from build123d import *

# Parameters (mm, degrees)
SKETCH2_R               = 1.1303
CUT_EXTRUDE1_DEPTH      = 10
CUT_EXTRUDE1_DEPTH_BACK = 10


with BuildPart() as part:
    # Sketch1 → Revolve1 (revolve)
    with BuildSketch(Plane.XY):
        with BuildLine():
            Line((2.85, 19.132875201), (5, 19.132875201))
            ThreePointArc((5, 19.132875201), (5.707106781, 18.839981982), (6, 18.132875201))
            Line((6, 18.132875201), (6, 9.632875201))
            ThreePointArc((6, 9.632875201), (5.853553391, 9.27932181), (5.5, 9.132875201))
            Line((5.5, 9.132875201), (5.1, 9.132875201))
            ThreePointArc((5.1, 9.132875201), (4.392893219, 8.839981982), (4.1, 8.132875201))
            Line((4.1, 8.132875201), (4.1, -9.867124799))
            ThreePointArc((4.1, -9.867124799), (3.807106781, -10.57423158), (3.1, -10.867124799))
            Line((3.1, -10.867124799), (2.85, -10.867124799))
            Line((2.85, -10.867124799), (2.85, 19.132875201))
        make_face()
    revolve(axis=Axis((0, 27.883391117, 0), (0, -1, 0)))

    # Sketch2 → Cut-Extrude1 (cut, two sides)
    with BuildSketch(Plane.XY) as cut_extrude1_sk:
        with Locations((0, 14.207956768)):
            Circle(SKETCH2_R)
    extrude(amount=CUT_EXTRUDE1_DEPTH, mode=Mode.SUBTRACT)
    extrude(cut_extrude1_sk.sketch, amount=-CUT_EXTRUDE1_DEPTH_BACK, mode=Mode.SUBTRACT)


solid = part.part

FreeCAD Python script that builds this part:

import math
import FreeCAD as App
import Part
import Sketcher

V = App.Vector

doc = App.newDocument("Part")
body = doc.addObject("PartDesign::Body", "Body")

# Sketch on XY plane
sketch1 = body.newObject("Sketcher::SketchObject", "Sketch")
sketch1.AttachmentSupport = (doc.getObject("XY_Plane"), [""])
sketch1.MapMode = "FlatFace"
sketch1.addGeometry([
    Part.LineSegment(V(5, 19.13, 0), V(2.85, 19.13, 0)),  # 0
    Part.LineSegment(V(2.85, 19.13, 0), V(2.85, -10.87, 0)),  # 1
    Part.LineSegment(V(2.85, -10.87, 0), V(3.1, -10.87, 0)),  # 2
    Part.ArcOfCircle(Part.Circle(V(3.1, -9.87, 0), V(0, 0, 1), 1), math.radians(-90), math.radians(0)),  # 3
    Part.LineSegment(V(4.1, -9.87, 0), V(4.1, 8.13, 0)),  # 4
    Part.ArcOfCircle(Part.Circle(V(5.1, 8.13, 0), V(0, 0, 1), 1), math.radians(90), math.radians(180)),  # 5
    Part.LineSegment(V(5.1, 9.13, 0), V(5.5, 9.13, 0)),  # 6
    Part.ArcOfCircle(Part.Circle(V(5.5, 9.63, 0), V(0, 0, 1), 0.5), math.radians(-90), math.radians(0)),  # 7
    Part.LineSegment(V(6, 9.63, 0), V(6, 18.13, 0)),  # 8
    Part.ArcOfCircle(Part.Circle(V(5, 18.13, 0), V(0, 0, 1), 1), math.radians(0), math.radians(90)),  # 9
], False)
sketch1.addConstraint([
    Sketcher.Constraint("Coincident", 0, 2, 1, 1),
    Sketcher.Constraint("Coincident", 1, 2, 2, 1),
    Sketcher.Constraint("Tangent", 2, 2, 3, 1),
    Sketcher.Constraint("Tangent", 3, 2, 4, 1),
    Sketcher.Constraint("Tangent", 4, 2, 5, 2),
    Sketcher.Constraint("Tangent", 5, 1, 6, 1),
    Sketcher.Constraint("Tangent", 6, 2, 7, 1),
    Sketcher.Constraint("Tangent", 7, 2, 8, 1),
    Sketcher.Constraint("Tangent", 8, 2, 9, 1),
    Sketcher.Constraint("Tangent", 9, 2, 0, 1),
    Sketcher.Constraint("Horizontal", 0),
    Sketcher.Constraint("Vertical", 1),
    Sketcher.Constraint("Horizontal", 2),
    Sketcher.Constraint("Vertical", 4),
    Sketcher.Constraint("Horizontal", 6),
    Sketcher.Constraint("Vertical", 8),
    Sketcher.Constraint("Equal", 3, 5),
    Sketcher.Constraint("Equal", 5, 9),
    Sketcher.Constraint("Radius", 3, 1.0),
    Sketcher.Constraint("Radius", 7, 0.5),
    Sketcher.Constraint("DistanceY", 1, 2, 1, 1, 30.0),
    Sketcher.Constraint("DistanceY", 4, 1, 4, 2, 18.0),
    Sketcher.Constraint("DistanceX", 6, 1, 6, 2, 0.4),
    Sketcher.Constraint("DistanceX", -1, 1, 9, 3, 5.0),
    Sketcher.Constraint("DistanceX", 0, 2, 0, 1, 2.15),
    Sketcher.Constraint("DistanceY", 3, 3, -1, 1, 9.867125),
])
revolution = body.newObject("PartDesign::Revolution", "Revolution")
revolution.Profile = sketch1
revolution.ReferenceAxis = (sketch1, ["V_Axis"])
revolution.Angle = 360

# Sketch on XY plane
sketch2 = body.newObject("Sketcher::SketchObject", "Sketch001")
sketch2.AttachmentSupport = (doc.getObject("XY_Plane"), [""])
sketch2.MapMode = "FlatFace"
sketch2.addGeometry(Part.Circle(V(0, 14.2, 0), V(0, 0, 1), 1.1), False)
sketch2.addConstraint([
    Sketcher.Constraint("PointOnObject", 0, 3, -2),
    Sketcher.Constraint("Diameter", 0, 2.2606),
    Sketcher.Constraint("DistanceY", -1, 1, 0, 3, 14.207957),
])
pocket1 = body.newObject("PartDesign::Pocket", "Pocket")
pocket1.Profile = sketch2
pocket1.Type = "ThroughAll"
pocket1.Midplane = True

doc.recompute()
